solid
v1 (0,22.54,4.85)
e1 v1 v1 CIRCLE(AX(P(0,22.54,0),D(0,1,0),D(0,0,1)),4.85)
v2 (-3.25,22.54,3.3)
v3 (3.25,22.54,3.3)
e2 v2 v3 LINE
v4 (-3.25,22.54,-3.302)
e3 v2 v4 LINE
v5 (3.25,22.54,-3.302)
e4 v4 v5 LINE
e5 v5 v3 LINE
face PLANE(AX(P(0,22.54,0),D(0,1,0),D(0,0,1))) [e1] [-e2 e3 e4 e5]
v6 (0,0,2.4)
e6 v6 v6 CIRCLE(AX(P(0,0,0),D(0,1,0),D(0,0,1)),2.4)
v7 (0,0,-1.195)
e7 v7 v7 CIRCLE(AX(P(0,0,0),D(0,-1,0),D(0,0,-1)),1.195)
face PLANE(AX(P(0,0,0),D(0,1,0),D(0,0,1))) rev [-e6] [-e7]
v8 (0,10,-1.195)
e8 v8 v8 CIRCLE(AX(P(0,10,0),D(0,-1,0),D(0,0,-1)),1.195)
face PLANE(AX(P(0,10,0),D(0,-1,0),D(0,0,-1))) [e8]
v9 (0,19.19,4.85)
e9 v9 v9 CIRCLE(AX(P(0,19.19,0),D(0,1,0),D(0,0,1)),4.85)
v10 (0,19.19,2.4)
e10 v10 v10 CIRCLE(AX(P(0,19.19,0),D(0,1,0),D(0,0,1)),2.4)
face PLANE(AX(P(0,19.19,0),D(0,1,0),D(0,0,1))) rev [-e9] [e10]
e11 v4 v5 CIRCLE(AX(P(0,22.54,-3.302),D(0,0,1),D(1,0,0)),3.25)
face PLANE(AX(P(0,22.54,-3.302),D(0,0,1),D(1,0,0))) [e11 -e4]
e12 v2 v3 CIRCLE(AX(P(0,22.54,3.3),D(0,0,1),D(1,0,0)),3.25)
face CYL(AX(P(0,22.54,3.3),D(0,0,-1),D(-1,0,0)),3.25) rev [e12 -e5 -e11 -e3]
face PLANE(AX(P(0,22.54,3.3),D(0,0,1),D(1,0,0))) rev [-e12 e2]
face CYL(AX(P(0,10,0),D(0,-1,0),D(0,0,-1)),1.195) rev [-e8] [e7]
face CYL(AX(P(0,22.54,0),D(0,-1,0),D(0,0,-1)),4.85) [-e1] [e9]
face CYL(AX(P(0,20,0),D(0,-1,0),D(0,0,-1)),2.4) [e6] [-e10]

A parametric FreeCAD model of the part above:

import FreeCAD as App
import Part
import Sketcher
Q = App.Units.Quantity

doc = App.newDocument("Part")
params = doc.addObject("Spreadsheet::Sheet", "Params")
for row, (alias, value) in enumerate([
    ("sketch1_diameter", "4.8 mm"),
    ("pad1_length", "20 mm"),
    ("sketch2_diameter", "2.39 mm"),
    ("pocket1_length", "10 mm"),
    ("sketch3_diameter", "9.7 mm"),
    ("pad2_length", "2.54 mm"),
    ("sketch4_diameter", "9.7 mm"),
    ("pad3_length", "3.35 mm"),
    ("sketch5_diameter", "6.5 mm"),
    ("pocket2_length", "3.3 mm"),
    ("pocket2_length2", "3.302 mm"),
], start=1):
    params.set(f"A{row}", alias)
    params.set(f"B{row}", "=" + value)
    params.setAlias(f"B{row}", alias)

body = doc.addObject("PartDesign::Body", "Body")

sketch1 = body.newObject("Sketcher::SketchObject", "Sketch")
sketch1.AttachmentSupport = (doc.getObject("XZ_Plane"), [""])
sketch1.MapMode = "FlatFace"
sketch1.addGeometry(Part.Circle(App.Vector(0, 0, 0), App.Vector(0, 0, 1), 2.4), False)
sketch1.addConstraint([
    Sketcher.Constraint("Coincident", 0, 3, -1, 1),
    Sketcher.Constraint("Diameter", 0, Q("4.8 mm")),
])
sketch1.setExpression("Constraints[1]", "Params.sketch1_diameter")
pad1 = body.newObject("PartDesign::Pad", "Pad")
pad1.Profile = sketch1
pad1.setExpression("Length", "Params.pad1_length")
pad1.Reversed = True

sketch2 = body.newObject("Sketcher::SketchObject", "Sketch001")
sketch2.AttachmentSupport = (doc.getObject("XZ_Plane"), [""])
sketch2.MapMode = "FlatFace"
sketch2.addGeometry(Part.Circle(App.Vector(0, 0, 0), App.Vector(0, 0, 1), 1.2), False)
sketch2.addConstraint([
    Sketcher.Constraint("Coincident", 0, 3, -1, 1),
    Sketcher.Constraint("Diameter", 0, Q("2.39 mm")),
])
sketch2.setExpression("Constraints[1]", "Params.sketch2_diameter")
pocket1 = body.newObject("PartDesign::Pocket", "Pocket")
pocket1.Profile = sketch2
pocket1.setExpression("Length", "Params.pocket1_length")

sketch3 = body.newObject("Sketcher::SketchObject", "Sketch002")
sketch3.AttachmentSupport = (doc.getObject("XZ_Plane"), [""])
sketch3.MapMode = "FlatFace"
sketch3.AttachmentOffset = App.Placement(App.Vector(0, 0, -20), App.Rotation())
sketch3.addGeometry(Part.Circle(App.Vector(0, 0, 0), App.Vector(0, 0, 1), 4.8), False)
sketch3.addConstraint([
    Sketcher.Constraint("Coincident", 0, 3, -1, 1),
    Sketcher.Constraint("Diameter", 0, Q("9.7 mm")),
])
sketch3.setExpression("Constraints[1]", "Params.sketch3_diameter")
pad2 = body.newObject("PartDesign::Pad", "Pad001")
pad2.Profile = sketch3
pad2.setExpression("Length", "Params.pad2_length")
pad2.Reversed = True

sketch4 = body.newObject("Sketcher::SketchObject", "Sketch003")
sketch4.AttachmentSupport = (doc.getObject("XZ_Plane"), [""])
sketch4.MapMode = "FlatFace"
sketch4.AttachmentOffset = App.Placement(App.Vector(0, 0, -19.19), App.Rotation())
sketch4.addGeometry(Part.Circle(App.Vector(0, 0, 0), App.Vector(0, 0, 1), 4.8), False)
sketch4.addConstraint([
    Sketcher.Constraint("Coincident", 0, 3, -1, 1),
    Sketcher.Constraint("Diameter", 0, Q("9.7 mm")),
])
sketch4.setExpression("Constraints[1]", "Params.sketch4_diameter")
pad3 = body.newObject("PartDesign::Pad", "Pad002")
pad3.Profile = sketch4
pad3.setExpression("Length", "Params.pad3_length")
pad3.Reversed = True

sketch5 = body.newObject("Sketcher::SketchObject", "Sketch004")
sketch5.AttachmentSupport = (doc.getObject("XY_Plane"), [""])
sketch5.MapMode = "FlatFace"
sketch5.addGeometry(Part.Circle(App.Vector(0, 22.5, 0), App.Vector(0, 0, 1), 3.2), False)
sketch5.addConstraint([
    Sketcher.Constraint("PointOnObject", 0, 3, -2),
    Sketcher.Constraint("Diameter", 0, Q("6.5 mm")),
    Sketcher.Constraint("DistanceY", -1, 1, 0, 3, Q("22.54 mm")),
])
sketch5.setExpression("Constraints[1]", "Params.sketch5_diameter")
pocket2 = body.newObject("PartDesign::Pocket", "Pocket001")
pocket2.Profile = sketch5
pocket2.Type = "TwoLengths"
pocket2.setExpression("Length", "Params.pocket2_length")
pocket2.setExpression("Length2", "Params.pocket2_length2")
pocket2.Reversed = True

doc.recompute()
